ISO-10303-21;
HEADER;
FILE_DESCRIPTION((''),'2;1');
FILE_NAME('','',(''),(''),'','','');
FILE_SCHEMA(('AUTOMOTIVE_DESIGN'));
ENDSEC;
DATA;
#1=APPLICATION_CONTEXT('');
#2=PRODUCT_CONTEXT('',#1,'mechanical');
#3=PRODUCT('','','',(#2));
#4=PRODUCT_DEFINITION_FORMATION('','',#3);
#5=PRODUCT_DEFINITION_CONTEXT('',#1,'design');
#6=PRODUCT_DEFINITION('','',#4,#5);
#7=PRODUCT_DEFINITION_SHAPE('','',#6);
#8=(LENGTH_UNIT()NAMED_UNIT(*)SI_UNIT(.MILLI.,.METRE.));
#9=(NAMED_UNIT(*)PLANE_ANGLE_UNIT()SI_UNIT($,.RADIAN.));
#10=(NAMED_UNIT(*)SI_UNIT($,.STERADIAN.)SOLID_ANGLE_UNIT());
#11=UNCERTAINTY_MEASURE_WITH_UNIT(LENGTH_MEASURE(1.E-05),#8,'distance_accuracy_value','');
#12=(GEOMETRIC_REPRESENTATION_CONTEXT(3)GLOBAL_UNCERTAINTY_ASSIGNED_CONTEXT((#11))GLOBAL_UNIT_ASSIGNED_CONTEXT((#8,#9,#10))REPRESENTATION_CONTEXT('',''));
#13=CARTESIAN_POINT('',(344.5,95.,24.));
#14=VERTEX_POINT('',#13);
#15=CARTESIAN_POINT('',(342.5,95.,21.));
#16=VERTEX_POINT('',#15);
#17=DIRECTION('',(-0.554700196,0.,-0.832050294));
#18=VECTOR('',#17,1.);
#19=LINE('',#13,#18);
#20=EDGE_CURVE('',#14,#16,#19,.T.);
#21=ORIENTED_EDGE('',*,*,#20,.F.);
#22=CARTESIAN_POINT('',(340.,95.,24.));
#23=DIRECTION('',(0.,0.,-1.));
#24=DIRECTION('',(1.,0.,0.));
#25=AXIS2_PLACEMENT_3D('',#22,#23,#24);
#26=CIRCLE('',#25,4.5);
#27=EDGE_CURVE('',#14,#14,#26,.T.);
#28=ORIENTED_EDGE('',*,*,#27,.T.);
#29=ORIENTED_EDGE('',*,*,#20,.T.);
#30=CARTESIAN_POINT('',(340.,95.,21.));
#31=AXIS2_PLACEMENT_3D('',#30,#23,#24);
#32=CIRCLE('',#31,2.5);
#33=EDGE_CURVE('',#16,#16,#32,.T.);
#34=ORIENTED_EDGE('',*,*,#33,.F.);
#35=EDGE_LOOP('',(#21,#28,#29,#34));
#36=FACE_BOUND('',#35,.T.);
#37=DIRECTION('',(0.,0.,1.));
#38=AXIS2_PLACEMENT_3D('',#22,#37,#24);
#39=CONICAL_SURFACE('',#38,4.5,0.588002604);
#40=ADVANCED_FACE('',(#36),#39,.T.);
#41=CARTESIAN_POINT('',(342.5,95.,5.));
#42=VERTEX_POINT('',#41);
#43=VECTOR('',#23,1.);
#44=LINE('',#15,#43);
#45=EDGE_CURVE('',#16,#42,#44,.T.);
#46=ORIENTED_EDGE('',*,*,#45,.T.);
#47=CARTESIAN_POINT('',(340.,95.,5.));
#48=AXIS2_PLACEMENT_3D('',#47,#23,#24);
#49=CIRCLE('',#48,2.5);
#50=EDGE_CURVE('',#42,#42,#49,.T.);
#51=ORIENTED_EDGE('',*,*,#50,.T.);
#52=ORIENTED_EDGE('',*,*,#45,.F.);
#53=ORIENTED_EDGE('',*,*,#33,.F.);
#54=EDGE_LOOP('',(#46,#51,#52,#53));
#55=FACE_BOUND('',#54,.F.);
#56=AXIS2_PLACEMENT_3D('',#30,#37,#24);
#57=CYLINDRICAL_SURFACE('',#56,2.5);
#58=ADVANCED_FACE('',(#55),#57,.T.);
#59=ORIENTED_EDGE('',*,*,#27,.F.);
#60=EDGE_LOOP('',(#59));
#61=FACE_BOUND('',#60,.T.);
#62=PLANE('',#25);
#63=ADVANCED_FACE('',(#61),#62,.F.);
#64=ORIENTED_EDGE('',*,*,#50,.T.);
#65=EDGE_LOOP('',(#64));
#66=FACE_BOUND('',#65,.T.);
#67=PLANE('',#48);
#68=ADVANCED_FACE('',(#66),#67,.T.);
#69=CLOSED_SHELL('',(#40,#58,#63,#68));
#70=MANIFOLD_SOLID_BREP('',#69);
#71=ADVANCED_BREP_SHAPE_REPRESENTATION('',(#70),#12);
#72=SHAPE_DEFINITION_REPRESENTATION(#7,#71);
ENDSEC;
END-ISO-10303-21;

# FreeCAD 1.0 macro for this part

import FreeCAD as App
import Part
import Sketcher

V = App.Vector

doc = App.newDocument("Part")
body = doc.addObject("PartDesign::Body", "Body")

sketch1 = doc.addObject("Sketcher::SketchObject", "Sketch")
body.addObject(sketch1)
sketch1.AttachmentSupport = (doc.XZ_Plane, [""])
sketch1.MapMode = "FlatFace"
sketch1.addGeometry([
    Part.LineSegment(V(0, -3, 0), V(4.5, -3, 0)),
    Part.LineSegment(V(4.5, -3, 0), V(2.5, 0, 0)),
    Part.LineSegment(V(2.5, 0, 0), V(0, 0, 0)),
    Part.LineSegment(V(0, 0, 0), V(0, -3, 0)),
], False)
sketch1.addConstraint([
    Sketcher.Constraint("Coincident", 0, 2, 1, 1),
    Sketcher.Constraint("Coincident", 1, 2, 2, 1),
    Sketcher.Constraint("Coincident", 2, 2, 3, 1),
    Sketcher.Constraint("Coincident", 3, 2, 0, 1),
    Sketcher.Constraint("Horizontal", 0),
    Sketcher.Constraint("Horizontal", 2),
    Sketcher.Constraint("Vertical", 3),
    Sketcher.Constraint("Coincident", 2, 2, -1, 1),
    Sketcher.Constraint("DistanceY", 3, 2, 3, 1, 3.0),
    Sketcher.Constraint("DistanceX", 0, 1, 0, 2, 4.5),
    Sketcher.Constraint("DistanceX", 2, 2, 2, 1, 2.5),
])
revolution = doc.addObject("PartDesign::Revolution", "Revolution")
body.addObject(revolution)
revolution.Profile = sketch1
revolution.ReferenceAxis = (sketch1, ["V_Axis"])
revolution.Angle = 360
body2 = doc.addObject("PartDesign::Body", "Body001")

sketch2 = doc.addObject("Sketcher::SketchObject", "Sketch001")
body2.addObject(sketch2)
sketch2.AttachmentSupport = (doc.getObject("XY_Plane001"), [""])
sketch2.MapMode = "FlatFace"
sketch2.addGeometry(Part.Circle(V(0, 0, 0), V(0, 0, 1), 2.5), False)
sketch2.addConstraint([
    Sketcher.Constraint("Coincident", 0, 3, -1, 1),
    Sketcher.Constraint("Diameter", 0, 5.0),
])
pad1 = doc.addObject("PartDesign::Pad", "Pad")
body2.addObject(pad1)
pad1.Profile = sketch2
pad1.Length = 16
doc.recompute()

boolean = doc.addObject("PartDesign::Boolean", "Boolean")
body2.addObject(boolean)
boolean.Type = "Fuse"
boolean.addObjects([body])
body3 = doc.addObject("PartDesign::Body", "Body002")
doc.recompute()

body2.Placement = App.Placement(V(45, 15, 21), App.Rotation(V(0, 1, 0), 180))
boolean2 = doc.addObject("PartDesign::Boolean", "Boolean001")
body3.addObject(boolean2)
boolean2.Type = "Fuse"
boolean2.addObjects([body2])
body4 = doc.addObject("PartDesign::Body", "Body003")
doc.recompute()

body3.Placement = App.Placement(V(115, 110, 0), App.Rotation(V(0, 0, 1), 180))
boolean3 = doc.addObject("PartDesign::Boolean", "Boolean002")
body4.addObject(boolean3)
boolean3.Type = "Fuse"
boolean3.addObjects([body3])
body5 = doc.addObject("PartDesign::Body", "Body004")
doc.recompute()

body4.Placement = App.Placement(V(270, 0, 0), App.Rotation(V(0, 0, 1), 0))
boolean4 = doc.addObject("PartDesign::Boolean", "Boolean003")
body5.addObject(boolean4)
boolean4.Type = "Fuse"
boolean4.addObjects([body4])

doc.recompute()
